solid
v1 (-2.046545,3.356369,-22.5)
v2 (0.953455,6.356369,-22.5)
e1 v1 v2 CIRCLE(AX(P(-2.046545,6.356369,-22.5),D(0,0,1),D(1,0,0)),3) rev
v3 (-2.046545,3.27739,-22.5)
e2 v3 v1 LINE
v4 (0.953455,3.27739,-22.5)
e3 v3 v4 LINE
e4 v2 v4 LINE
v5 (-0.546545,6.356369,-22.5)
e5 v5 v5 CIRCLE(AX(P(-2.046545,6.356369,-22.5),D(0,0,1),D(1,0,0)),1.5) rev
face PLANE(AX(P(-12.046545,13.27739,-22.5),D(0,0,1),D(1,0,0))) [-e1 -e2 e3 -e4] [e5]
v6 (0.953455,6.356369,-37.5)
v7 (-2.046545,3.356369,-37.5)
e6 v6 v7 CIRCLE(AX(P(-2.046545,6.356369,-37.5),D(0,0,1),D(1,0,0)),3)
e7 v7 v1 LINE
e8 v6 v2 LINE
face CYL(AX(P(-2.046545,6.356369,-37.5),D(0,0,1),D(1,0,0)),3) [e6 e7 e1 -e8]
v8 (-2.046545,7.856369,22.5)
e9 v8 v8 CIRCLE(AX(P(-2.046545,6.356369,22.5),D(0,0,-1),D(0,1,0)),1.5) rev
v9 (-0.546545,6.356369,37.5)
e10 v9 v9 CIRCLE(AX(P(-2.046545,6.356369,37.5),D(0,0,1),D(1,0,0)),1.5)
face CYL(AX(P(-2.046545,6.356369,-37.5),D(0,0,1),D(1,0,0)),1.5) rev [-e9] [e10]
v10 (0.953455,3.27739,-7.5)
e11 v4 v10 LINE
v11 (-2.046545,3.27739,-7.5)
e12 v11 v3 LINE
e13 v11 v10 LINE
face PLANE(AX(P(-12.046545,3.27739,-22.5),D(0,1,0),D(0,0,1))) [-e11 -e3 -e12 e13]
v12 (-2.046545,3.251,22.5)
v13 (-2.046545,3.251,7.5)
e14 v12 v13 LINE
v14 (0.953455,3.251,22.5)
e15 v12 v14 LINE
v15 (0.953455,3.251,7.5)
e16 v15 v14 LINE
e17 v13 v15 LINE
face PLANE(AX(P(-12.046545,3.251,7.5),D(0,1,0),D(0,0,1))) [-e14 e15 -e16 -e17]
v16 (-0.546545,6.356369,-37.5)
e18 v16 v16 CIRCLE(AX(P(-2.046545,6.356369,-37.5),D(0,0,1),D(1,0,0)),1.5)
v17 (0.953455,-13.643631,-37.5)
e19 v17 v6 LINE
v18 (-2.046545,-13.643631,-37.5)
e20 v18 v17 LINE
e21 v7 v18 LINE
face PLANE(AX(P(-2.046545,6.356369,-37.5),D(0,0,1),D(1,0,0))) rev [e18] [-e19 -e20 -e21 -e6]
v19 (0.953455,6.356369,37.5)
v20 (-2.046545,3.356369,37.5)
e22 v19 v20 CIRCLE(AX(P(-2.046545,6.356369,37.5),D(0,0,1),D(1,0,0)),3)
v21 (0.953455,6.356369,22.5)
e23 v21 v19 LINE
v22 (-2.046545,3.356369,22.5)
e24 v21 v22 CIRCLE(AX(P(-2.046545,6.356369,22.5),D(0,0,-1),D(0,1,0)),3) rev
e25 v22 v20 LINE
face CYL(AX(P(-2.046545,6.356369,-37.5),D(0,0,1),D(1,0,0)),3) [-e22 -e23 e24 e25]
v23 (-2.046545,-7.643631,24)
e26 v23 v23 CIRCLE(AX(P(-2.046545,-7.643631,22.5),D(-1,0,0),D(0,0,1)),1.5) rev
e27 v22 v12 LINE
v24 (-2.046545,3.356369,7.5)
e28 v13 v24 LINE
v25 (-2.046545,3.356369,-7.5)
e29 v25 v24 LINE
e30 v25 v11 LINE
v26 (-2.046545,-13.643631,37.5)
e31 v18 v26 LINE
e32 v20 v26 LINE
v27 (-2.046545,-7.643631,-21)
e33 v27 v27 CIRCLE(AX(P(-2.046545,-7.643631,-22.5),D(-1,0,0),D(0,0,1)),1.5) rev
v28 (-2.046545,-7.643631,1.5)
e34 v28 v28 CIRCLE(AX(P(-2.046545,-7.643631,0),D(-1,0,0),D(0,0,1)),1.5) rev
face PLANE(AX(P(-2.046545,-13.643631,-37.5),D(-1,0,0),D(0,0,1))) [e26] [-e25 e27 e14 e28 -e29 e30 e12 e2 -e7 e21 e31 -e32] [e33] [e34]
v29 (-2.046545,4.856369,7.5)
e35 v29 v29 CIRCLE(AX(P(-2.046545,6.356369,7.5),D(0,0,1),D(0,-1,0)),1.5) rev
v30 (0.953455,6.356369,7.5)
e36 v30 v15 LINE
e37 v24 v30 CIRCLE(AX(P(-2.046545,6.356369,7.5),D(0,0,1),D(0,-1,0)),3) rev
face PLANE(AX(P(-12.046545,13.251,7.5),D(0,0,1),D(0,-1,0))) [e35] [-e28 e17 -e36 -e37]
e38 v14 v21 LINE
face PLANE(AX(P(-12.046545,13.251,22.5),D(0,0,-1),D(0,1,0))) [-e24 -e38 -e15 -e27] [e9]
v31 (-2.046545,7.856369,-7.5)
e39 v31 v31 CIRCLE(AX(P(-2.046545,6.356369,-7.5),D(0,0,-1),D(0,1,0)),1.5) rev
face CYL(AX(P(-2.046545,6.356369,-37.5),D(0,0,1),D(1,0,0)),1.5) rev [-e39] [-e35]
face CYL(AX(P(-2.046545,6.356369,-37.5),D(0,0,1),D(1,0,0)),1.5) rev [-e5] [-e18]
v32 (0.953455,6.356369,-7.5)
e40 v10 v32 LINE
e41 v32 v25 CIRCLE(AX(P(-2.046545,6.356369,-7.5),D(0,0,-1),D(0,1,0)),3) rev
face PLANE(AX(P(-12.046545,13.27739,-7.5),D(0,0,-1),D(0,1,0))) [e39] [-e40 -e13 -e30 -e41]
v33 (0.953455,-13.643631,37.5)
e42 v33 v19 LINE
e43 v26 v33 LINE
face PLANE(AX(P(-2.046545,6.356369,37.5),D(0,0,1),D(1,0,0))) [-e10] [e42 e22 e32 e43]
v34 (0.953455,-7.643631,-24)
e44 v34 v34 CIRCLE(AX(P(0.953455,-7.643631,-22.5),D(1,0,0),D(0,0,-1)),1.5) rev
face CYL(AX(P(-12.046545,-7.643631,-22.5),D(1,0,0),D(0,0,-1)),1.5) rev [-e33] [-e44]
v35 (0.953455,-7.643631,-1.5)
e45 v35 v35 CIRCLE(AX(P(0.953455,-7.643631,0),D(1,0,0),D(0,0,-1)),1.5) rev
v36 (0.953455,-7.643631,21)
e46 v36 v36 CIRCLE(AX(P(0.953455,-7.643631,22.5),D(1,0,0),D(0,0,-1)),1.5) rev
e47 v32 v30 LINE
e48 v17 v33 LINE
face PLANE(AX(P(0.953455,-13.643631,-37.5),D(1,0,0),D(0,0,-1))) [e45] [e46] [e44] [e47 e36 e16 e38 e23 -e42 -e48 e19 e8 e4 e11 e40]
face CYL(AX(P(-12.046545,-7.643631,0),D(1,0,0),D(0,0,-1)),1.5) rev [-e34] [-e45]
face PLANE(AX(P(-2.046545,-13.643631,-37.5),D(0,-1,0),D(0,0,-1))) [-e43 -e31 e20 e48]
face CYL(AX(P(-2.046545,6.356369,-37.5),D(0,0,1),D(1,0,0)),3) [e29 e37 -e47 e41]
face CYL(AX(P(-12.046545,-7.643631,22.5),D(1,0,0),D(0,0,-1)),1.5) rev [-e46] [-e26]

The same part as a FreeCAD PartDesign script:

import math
import FreeCAD as App
import Part
import Sketcher
from FreeCAD import Vector
Q = App.Units.Quantity


def add_polygon(sketch, points):
    """Adds a closed chain of lines whose ends are joined by coincident constraints."""
    first, n = sketch.GeometryCount, len(points)
    for a, b in zip(points, points[1:] + points[:1]):
        sketch.addGeometry(Part.LineSegment(App.Vector(*a, 0), App.Vector(*b, 0)), False)
    for i in range(n):
        sketch.addConstraint(Sketcher.Constraint("Coincident", first + i, 2, first + (i + 1) % n, 1))

doc = App.newDocument("Part")
params = doc.addObject("Spreadsheet::Sheet", "Params")
for row, (alias, value) in enumerate([
    ("sketch1_diameter", "3 mm"),
    ("sketch1_radius", "3 mm"),
    ("sketch1_height", "17 mm"),
    ("pad1_length", "37.5 mm"),
    ("pad1_length2", "37.5 mm"),
    ("sketch2_diameter", "3 mm"),
    ("sketch2_width", "10 mm"),
    ("sketch2_height", "15 mm"),
], start=1):
    params.set(f"A{row}", alias)
    params.set(f"B{row}", "=" + value)
    params.setAlias(f"B{row}", alias)

body = doc.addObject("PartDesign::Body", "Body")

# Sketch on XY plane
sketch1 = body.newObject("Sketcher::SketchObject", "Sketch")
sketch1.AttachmentSupport = (doc.getObject("XY_Plane"), [""])
sketch1.MapMode = "FlatFace"
sketch1.addGeometry(Part.LineSegment(Vector(-2, 3.4, 0), Vector(-2, -13.6, 0)), False)
sketch1.addGeometry(Part.LineSegment(Vector(-2, -13.6, 0), Vector(1, -13.6, 0)), False)
sketch1.addGeometry(Part.LineSegment(Vector(1, -13.6, 0), Vector(1, 6.4, 0)), False)
sketch1.addGeometry(Part.ArcOfCircle(Part.Circle(Vector(-2, 6.4, 0), Vector(0, 0, 1), 3), math.radians(0), math.radians(270)), False)
sketch1.addGeometry(Part.Circle(Vector(-2, 6.4, 0), Vector(0, 0, 1), 1.5), False)
sketch1.addConstraint(Sketcher.Constraint("Coincident", 0, 2, 1, 1))
sketch1.addConstraint(Sketcher.Constraint("Coincident", 1, 2, 2, 1))
sketch1.addConstraint(Sketcher.Constraint("Tangent", 2, 2, 3, 1))
sketch1.addConstraint(Sketcher.Constraint("Coincident", 3, 2, 0, 1))
sketch1.addConstraint(Sketcher.Constraint("Vertical", 0))
sketch1.addConstraint(Sketcher.Constraint("Horizontal", 1))
sketch1.addConstraint(Sketcher.Constraint("Vertical", 2))
sketch1.addConstraint(Sketcher.Constraint("Coincident", 4, 3, 3, 3))
sketch1.addConstraint(Sketcher.Constraint("Vertical", 4, 3, 0, 2))
sketch1.addConstraint(Sketcher.Constraint("Diameter", 4, Q("3 mm")))
sketch1.addConstraint(Sketcher.Constraint("Radius", 3, Q("3 mm")))
sketch1.addConstraint(Sketcher.Constraint("DistanceY", 0, 2, 0, 1, Q("17 mm")))
sketch1.addConstraint(Sketcher.Constraint("DistanceY", -1, 1, 3, 3, Q("6.356369 mm")))
sketch1.addConstraint(Sketcher.Constraint("DistanceX", 3, 3, -1, 1, Q("2.046545 mm")))
sketch1.setExpression("Constraints[9]", "Params.sketch1_diameter")
sketch1.setExpression("Constraints[10]", "Params.sketch1_radius")
sketch1.setExpression("Constraints[11]", "Params.sketch1_height")
pad1 = body.newObject("PartDesign::Pad", "Pad")
pad1.Profile = sketch1
pad1.Type = "TwoLengths"
pad1.setExpression("Length", "Params.pad1_length")
pad1.setExpression("Length2", "Params.pad1_length2")

# Sketch on YZ plane
sketch2 = body.newObject("Sketcher::SketchObject", "Sketch001")
sketch2.AttachmentSupport = (doc.getObject("YZ_Plane"), [""])
sketch2.MapMode = "FlatFace"
sketch2.AttachmentOffset = App.Placement(Vector(0, 0, -2.046545), App.Rotation())
sketch2.addGeometry(Part.Circle(Vector(-7.6, -22.5, 0), Vector(0, 0, 1), 1.5), False)  # 0
sketch2.addGeometry(Part.Circle(Vector(-7.6, 0, 0), Vector(0, 0, 1), 1.5), False)  # 1
sketch2.addGeometry(Part.Circle(Vector(-7.6, 22.5, 0), Vector(0, 0, 1), 1.5), False)  # 2
add_polygon(sketch2, [(13.3, -22.5), (3.3, -22.5), (3.3, -7.5), (13.3, -7.5)])  # lines 3-6
add_polygon(sketch2, [(13.3, 7.5), (3.3, 7.5), (3.3, 22.5), (13.3, 22.5)])  # lines 7-10
sketch2.addConstraint(Sketcher.Constraint("Horizontal", 3))
sketch2.addConstraint(Sketcher.Constraint("Vertical", 4))
sketch2.addConstraint(Sketcher.Constraint("Horizontal", 5))
sketch2.addConstraint(Sketcher.Constraint("Vertical", 6))
sketch2.addConstraint(Sketcher.Constraint("Horizontal", 7))
sketch2.addConstraint(Sketcher.Constraint("Vertical", 8))
sketch2.addConstraint(Sketcher.Constraint("Horizontal", 9))
sketch2.addConstraint(Sketcher.Constraint("Vertical", 10))
sketch2.addConstraint(Sketcher.Constraint("Equal", 0, 1))
sketch2.addConstraint(Sketcher.Constraint("Equal", 1, 2))
sketch2.addConstraint(Sketcher.Constraint("Symmetric", 0, 3, 2, 3, -1))
sketch2.addConstraint(Sketcher.Constraint("PointOnObject", 1, 3, -1))
sketch2.addConstraint(Sketcher.Constraint("Horizontal", 0, 3, 3, 2))
sketch2.addConstraint(Sketcher.Constraint("Horizontal", 2, 3, 8, 2))
sketch2.addConstraint(Sketcher.Constraint("Vertical", 0, 3, 1, 3))
sketch2.addConstraint(Sketcher.Constraint("Equal", 5, 7))
sketch2.addConstraint(Sketcher.Constraint("Equal", 6, 8))
sketch2.addConstraint(Sketcher.Constraint("Diameter", 0, Q("3 mm")))
sketch2.addConstraint(Sketcher.Constraint("DistanceX", 3, 2, 3, 1, Q("10 mm")))
sketch2.addConstraint(Sketcher.Constraint("DistanceY", 4, 1, 4, 2, Q("15 mm")))
sketch2.addConstraint(Sketcher.Constraint("DistanceY", 0, 3, 2, 3, Q("45 mm")))
sketch2.addConstraint(Sketcher.Constraint("DistanceX", -1, 1, 7, 2, Q("3.251 mm")))
sketch2.addConstraint(Sketcher.Constraint("DistanceX", 0, 3, -1, 1, Q("7.643631 mm")))
sketch2.addConstraint(Sketcher.Constraint("DistanceX", -1, 1, 3, 2, Q("3.27739 mm")))
sketch2.setExpression("Constraints[25]", "Params.sketch2_diameter")
sketch2.setExpression("Constraints[26]", "Params.sketch2_width")
sketch2.setExpression("Constraints[27]", "Params.sketch2_height")
pocket1 = body.newObject("PartDesign::Pocket", "Pocket")
pocket1.Profile = sketch2
pocket1.Type = "ThroughAll"
pocket1.Midplane = True

doc.recompute()
